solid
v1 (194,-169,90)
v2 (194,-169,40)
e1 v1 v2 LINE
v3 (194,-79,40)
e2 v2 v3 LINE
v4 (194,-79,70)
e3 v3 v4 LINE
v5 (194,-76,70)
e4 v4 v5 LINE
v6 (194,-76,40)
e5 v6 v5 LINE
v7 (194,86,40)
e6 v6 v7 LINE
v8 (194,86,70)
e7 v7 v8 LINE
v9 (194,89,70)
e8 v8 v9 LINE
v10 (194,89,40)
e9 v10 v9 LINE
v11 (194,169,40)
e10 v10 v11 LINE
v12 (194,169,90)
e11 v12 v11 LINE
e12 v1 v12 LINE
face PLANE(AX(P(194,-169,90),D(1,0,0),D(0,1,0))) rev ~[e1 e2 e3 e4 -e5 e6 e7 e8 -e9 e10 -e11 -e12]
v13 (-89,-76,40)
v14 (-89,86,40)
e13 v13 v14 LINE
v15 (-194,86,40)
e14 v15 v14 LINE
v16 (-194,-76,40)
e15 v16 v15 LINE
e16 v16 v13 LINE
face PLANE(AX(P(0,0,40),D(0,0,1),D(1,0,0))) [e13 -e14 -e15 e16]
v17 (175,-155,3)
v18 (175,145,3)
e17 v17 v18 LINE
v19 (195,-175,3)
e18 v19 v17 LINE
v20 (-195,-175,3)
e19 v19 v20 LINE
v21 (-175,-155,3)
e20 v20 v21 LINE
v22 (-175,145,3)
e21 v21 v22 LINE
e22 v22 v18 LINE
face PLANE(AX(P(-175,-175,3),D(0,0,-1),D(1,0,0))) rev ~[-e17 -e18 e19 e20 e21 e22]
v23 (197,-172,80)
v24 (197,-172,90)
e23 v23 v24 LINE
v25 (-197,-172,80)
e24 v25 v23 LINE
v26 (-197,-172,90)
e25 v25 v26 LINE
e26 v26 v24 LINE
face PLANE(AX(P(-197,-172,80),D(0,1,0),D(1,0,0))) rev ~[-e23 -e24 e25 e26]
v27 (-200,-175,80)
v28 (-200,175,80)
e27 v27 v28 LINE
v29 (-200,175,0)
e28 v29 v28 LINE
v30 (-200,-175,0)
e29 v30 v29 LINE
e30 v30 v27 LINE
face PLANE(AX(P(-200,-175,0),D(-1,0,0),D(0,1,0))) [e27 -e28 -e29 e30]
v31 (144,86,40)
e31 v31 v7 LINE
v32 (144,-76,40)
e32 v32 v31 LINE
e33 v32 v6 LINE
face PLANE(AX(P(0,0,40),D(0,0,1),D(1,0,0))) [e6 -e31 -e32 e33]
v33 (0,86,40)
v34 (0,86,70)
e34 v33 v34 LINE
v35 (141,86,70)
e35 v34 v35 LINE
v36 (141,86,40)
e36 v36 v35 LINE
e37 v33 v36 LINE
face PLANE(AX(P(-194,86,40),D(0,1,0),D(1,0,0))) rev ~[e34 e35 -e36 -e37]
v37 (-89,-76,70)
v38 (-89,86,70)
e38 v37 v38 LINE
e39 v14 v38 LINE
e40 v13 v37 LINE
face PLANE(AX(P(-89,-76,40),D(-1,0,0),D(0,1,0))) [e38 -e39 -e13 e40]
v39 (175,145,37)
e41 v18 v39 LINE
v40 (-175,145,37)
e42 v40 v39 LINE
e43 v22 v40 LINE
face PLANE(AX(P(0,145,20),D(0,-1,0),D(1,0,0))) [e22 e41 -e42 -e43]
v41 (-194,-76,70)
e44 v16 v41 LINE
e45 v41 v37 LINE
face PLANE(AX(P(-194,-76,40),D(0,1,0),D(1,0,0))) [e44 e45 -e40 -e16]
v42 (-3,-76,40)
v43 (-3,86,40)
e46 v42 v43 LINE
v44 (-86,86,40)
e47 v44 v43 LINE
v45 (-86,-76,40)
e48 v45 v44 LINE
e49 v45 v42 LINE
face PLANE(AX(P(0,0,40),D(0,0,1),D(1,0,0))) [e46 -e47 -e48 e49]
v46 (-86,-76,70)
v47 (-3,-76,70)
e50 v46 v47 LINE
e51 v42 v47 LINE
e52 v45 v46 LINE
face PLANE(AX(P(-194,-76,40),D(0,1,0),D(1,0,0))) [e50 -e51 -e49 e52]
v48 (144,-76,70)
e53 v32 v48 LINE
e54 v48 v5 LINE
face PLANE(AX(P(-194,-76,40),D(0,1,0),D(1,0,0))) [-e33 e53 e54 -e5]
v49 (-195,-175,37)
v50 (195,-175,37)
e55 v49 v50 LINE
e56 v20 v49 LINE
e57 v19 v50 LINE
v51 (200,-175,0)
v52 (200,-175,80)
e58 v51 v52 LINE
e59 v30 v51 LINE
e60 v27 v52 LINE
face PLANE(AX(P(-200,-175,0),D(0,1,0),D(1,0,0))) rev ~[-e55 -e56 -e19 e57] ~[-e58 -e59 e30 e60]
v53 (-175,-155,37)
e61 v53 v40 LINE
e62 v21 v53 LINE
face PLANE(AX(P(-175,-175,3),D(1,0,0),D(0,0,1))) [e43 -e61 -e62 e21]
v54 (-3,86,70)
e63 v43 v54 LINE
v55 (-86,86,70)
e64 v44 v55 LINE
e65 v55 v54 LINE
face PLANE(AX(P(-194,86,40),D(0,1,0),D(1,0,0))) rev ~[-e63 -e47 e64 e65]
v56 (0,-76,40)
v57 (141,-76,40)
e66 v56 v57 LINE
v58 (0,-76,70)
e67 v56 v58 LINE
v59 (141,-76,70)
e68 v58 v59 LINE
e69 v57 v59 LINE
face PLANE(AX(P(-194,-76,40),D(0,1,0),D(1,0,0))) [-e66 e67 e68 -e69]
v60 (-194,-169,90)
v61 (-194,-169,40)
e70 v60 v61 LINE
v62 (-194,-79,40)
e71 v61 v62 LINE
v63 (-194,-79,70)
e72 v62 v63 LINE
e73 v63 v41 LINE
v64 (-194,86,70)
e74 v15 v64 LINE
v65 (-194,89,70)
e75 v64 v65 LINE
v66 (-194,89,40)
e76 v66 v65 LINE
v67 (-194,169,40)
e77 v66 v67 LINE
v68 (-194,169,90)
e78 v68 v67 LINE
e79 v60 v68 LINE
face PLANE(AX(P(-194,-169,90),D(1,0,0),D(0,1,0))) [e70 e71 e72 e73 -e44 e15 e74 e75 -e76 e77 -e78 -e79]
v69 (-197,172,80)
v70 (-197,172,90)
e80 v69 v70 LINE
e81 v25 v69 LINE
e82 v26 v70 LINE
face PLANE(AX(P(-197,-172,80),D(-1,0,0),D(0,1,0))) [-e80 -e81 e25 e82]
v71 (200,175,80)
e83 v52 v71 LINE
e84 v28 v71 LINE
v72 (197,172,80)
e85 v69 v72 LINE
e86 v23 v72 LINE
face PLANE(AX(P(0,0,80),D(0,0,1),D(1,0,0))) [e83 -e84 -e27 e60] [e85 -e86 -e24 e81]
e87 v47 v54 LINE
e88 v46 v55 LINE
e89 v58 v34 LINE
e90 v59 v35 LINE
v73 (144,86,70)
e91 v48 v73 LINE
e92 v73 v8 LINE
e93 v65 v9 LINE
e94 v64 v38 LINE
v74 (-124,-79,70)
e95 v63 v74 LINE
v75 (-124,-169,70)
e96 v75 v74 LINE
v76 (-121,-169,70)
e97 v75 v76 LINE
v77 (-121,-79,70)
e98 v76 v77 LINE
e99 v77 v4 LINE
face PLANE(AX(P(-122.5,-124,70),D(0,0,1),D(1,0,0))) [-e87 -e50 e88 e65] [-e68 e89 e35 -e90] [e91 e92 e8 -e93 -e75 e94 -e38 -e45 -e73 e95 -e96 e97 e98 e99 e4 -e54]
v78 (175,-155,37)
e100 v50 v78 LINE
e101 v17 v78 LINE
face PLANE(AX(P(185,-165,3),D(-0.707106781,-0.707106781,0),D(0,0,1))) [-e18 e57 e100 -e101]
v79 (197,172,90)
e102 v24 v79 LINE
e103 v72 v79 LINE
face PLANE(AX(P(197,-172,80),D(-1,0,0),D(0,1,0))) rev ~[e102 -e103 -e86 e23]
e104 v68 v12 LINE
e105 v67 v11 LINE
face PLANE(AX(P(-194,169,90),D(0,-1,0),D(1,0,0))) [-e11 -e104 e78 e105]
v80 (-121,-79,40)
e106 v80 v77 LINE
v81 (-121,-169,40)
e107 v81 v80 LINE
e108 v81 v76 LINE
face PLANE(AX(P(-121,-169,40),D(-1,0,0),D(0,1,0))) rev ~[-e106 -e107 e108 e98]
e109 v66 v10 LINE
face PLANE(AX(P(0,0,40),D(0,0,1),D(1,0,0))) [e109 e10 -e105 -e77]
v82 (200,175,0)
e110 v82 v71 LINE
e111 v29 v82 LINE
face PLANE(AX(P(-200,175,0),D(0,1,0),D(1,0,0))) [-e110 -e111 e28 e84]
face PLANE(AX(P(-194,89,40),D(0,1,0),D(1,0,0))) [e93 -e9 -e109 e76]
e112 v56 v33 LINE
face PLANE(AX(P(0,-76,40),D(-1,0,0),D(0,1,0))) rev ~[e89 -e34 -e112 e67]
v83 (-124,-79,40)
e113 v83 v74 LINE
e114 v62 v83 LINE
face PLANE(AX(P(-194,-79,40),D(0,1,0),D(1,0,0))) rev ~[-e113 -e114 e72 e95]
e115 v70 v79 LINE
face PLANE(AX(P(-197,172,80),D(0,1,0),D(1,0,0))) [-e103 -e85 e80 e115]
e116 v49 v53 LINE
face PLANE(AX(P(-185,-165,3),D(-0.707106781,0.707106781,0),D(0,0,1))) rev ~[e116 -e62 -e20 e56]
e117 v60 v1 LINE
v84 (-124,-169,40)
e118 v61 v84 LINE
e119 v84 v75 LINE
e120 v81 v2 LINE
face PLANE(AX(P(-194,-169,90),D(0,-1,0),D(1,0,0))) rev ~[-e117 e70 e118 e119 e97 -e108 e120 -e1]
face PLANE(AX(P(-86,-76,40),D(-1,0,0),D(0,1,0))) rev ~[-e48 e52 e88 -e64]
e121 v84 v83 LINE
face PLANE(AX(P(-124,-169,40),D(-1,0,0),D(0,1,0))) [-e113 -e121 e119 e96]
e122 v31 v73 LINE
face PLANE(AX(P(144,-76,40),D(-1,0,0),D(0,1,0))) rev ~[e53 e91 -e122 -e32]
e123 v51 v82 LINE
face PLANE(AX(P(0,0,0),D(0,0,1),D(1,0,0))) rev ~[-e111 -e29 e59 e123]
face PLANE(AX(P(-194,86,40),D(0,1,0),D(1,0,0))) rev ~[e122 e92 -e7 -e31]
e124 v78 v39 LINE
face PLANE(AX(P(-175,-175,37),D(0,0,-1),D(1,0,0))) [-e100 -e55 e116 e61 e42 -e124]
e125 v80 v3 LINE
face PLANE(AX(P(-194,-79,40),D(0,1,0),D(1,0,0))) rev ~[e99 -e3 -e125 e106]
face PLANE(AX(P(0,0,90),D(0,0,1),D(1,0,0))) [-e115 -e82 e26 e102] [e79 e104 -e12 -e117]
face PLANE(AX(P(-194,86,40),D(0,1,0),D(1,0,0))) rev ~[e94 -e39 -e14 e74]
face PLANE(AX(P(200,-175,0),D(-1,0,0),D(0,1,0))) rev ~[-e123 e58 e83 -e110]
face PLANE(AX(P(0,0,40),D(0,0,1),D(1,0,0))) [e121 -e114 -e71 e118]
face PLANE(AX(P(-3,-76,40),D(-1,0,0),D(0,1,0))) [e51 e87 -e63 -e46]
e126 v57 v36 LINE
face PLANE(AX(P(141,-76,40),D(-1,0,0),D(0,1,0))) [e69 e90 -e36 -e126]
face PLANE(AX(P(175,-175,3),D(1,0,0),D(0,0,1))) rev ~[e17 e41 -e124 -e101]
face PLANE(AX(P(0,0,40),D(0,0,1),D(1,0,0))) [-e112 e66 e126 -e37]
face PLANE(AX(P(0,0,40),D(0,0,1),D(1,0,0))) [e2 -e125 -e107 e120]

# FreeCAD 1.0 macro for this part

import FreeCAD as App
import Part
import Sketcher

V = App.Vector
Q = App.Units.Quantity


def edges_at(feature, points):
    """Names of the edges that pass closest to the given points."""
    edges = feature.Shape.Edges
    near = lambda p: min(range(len(edges)), key=lambda i: edges[i].distToShape(Part.Vertex(*p))[0])
    return sorted({f"Edge{near(p) + 1}" for p in points})


def add_polygon(sketch, points):
    """Adds a closed chain of lines whose ends are joined by coincident constraints."""
    first, n = sketch.GeometryCount, len(points)
    for a, b in zip(points, points[1:] + points[:1]):
        sketch.addGeometry(Part.LineSegment(App.Vector(*a, 0), App.Vector(*b, 0)), False)
    for i in range(n):
        sketch.addConstraint(Sketcher.Constraint("Coincident", first + i, 2, first + (i + 1) % n, 1))

doc = App.newDocument("Part")
body = doc.addObject("PartDesign::Body", "Body")

# Sketch on XY plane
sketch1 = doc.addObject("Sketcher::SketchObject", "Sketch")
body.addObject(sketch1)
sketch1.AttachmentSupport = (doc.XY_Plane, [""])
sketch1.MapMode = "FlatFace"
add_polygon(sketch1, [(-200, 175), (-200, -175), (200, -175), (200, 175)])  # lines 0-3
sketch1.addConstraint(Sketcher.Constraint("Vertical", 0))
sketch1.addConstraint(Sketcher.Constraint("Horizontal", 1))
sketch1.addConstraint(Sketcher.Constraint("Vertical", 2))
sketch1.addConstraint(Sketcher.Constraint("Horizontal", 3))
sketch1.addConstraint(Sketcher.Constraint("Symmetric", 0, 2, 2, 2, -1, 1))
sketch1.addConstraint(Sketcher.Constraint("DistanceX", 1, 1, 1, 2, Q("400 mm")))
sketch1.addConstraint(Sketcher.Constraint("DistanceY", 0, 2, 0, 1, Q("350 mm")))
pad1 = doc.addObject("PartDesign::Pad", "Pad")
body.addObject(pad1)
pad1.Profile = sketch1
pad1.Length = 80

# Sketch on XY plane
sketch2 = doc.addObject("Sketcher::SketchObject", "Sketch001")
body.addObject(sketch2)
sketch2.AttachmentSupport = (doc.XY_Plane, [""])
sketch2.MapMode = "FlatFace"
sketch2.AttachmentOffset = App.Placement(V(0, 0, 80), App.Rotation())
add_polygon(sketch2, [(-197, 172), (-197, -172), (197, -172), (197, 172)])  # lines 0-3
sketch2.addConstraint(Sketcher.Constraint("Vertical", 0))
sketch2.addConstraint(Sketcher.Constraint("Horizontal", 1))
sketch2.addConstraint(Sketcher.Constraint("Vertical", 2))
sketch2.addConstraint(Sketcher.Constraint("Horizontal", 3))
sketch2.addConstraint(Sketcher.Constraint("Symmetric", 0, 2, 2, 2, -1, 1))
sketch2.addConstraint(Sketcher.Constraint("DistanceX", 1, 1, 1, 2, Q("394 mm")))
sketch2.addConstraint(Sketcher.Constraint("DistanceY", 0, 2, 0, 1, Q("344 mm")))
pad2 = doc.addObject("PartDesign::Pad", "Pad001")
body.addObject(pad2)
pad2.Profile = sketch2
pad2.Length = 10

# Sketch on XY plane
sketch3 = doc.addObject("Sketcher::SketchObject", "Sketch002")
body.addObject(sketch3)
sketch3.AttachmentSupport = (doc.XY_Plane, [""])
sketch3.MapMode = "FlatFace"
sketch3.AttachmentOffset = App.Placement(V(0, 0, 90), App.Rotation())
add_polygon(sketch3, [(-194, 169), (-194, -169), (194, -169), (194, 169)])  # lines 0-3
sketch3.addConstraint(Sketcher.Constraint("Vertical", 0))
sketch3.addConstraint(Sketcher.Constraint("Horizontal", 1))
sketch3.addConstraint(Sketcher.Constraint("Vertical", 2))
sketch3.addConstraint(Sketcher.Constraint("Horizontal", 3))
sketch3.addConstraint(Sketcher.Constraint("Symmetric", 0, 2, 2, 2, -1, 1))
sketch3.addConstraint(Sketcher.Constraint("DistanceX", 1, 1, 1, 2, Q("388 mm")))
sketch3.addConstraint(Sketcher.Constraint("DistanceY", 0, 2, 0, 1, Q("338 mm")))
pocket1 = doc.addObject("PartDesign::Pocket", "Pocket")
body.addObject(pocket1)
pocket1.Profile = sketch3
pocket1.Length = 50

# Sketch on XY plane
sketch4 = doc.addObject("Sketcher::SketchObject", "Sketch003")
body.addObject(sketch4)
sketch4.AttachmentSupport = (doc.XY_Plane, [""])
sketch4.MapMode = "FlatFace"
sketch4.AttachmentOffset = App.Placement(V(0, 0, 40), App.Rotation())
add_polygon(sketch4, [(-194, 89), (-194, 86), (194, 86), (194, 89)])  # lines 0-3
add_polygon(sketch4, [(-194, -76), (-194, -79), (194, -79), (194, -76)])  # lines 4-7
sketch4.addConstraint(Sketcher.Constraint("Vertical", 0))
sketch4.addConstraint(Sketcher.Constraint("Horizontal", 1))
sketch4.addConstraint(Sketcher.Constraint("Vertical", 2))
sketch4.addConstraint(Sketcher.Constraint("Horizontal", 3))
sketch4.addConstraint(Sketcher.Constraint("Vertical", 4))
sketch4.addConstraint(Sketcher.Constraint("Horizontal", 5))
sketch4.addConstraint(Sketcher.Constraint("Vertical", 6))
sketch4.addConstraint(Sketcher.Constraint("Horizontal", 7))
sketch4.addConstraint(Sketcher.Constraint("Vertical", 3, 2, 4, 2))
sketch4.addConstraint(Sketcher.Constraint("Vertical", 2, 2, 5, 2))
sketch4.addConstraint(Sketcher.Constraint("Equal", 2, 4))
sketch4.addConstraint(Sketcher.Constraint("DistanceX", 1, 1, 1, 2, Q("388 mm")))
sketch4.addConstraint(Sketcher.Constraint("DistanceY", 0, 2, 0, 1, Q("3 mm")))
sketch4.addConstraint(Sketcher.Constraint("DistanceX", 0, 2, -1, 1, Q("194 mm")))
sketch4.addConstraint(Sketcher.Constraint("DistanceY", -1, 1, 0, 2, Q("86 mm")))
sketch4.addConstraint(Sketcher.Constraint("DistanceY", 4, 2, -1, 1, Q("79 mm")))
pad3 = doc.addObject("PartDesign::Pad", "Pad002")
body.addObject(pad3)
pad3.Profile = sketch4
pad3.Length = 30

# Sketch on XY plane
sketch5 = doc.addObject("Sketcher::SketchObject", "Sketch004")
body.addObject(sketch5)
sketch5.AttachmentSupport = (doc.XY_Plane, [""])
sketch5.MapMode = "FlatFace"
sketch5.AttachmentOffset = App.Placement(V(0, 0, 40), App.Rotation())
add_polygon(sketch5, [(-89, 86), (-89, -76), (-86, -76), (-86, 86)])  # lines 0-3
add_polygon(sketch5, [(-3, 86), (-3, -76), (0, -76), (0, 86)])  # lines 4-7
add_polygon(sketch5, [(141, 86), (141, -76), (144, -76), (144, 86)])  # lines 8-11
add_polygon(sketch5, [(-124, -79), (-124, -169), (-121, -169), (-121, -79)])  # lines 12-15
sketch5.addConstraint(Sketcher.Constraint("Vertical", 0))
sketch5.addConstraint(Sketcher.Constraint("Horizontal", 1))
sketch5.addConstraint(Sketcher.Constraint("Vertical", 2))
sketch5.addConstraint(Sketcher.Constraint("Horizontal", 3))
sketch5.addConstraint(Sketcher.Constraint("Vertical", 4))
sketch5.addConstraint(Sketcher.Constraint("Horizontal", 5))
sketch5.addConstraint(Sketcher.Constraint("Vertical", 6))
sketch5.addConstraint(Sketcher.Constraint("Horizontal", 7))
sketch5.addConstraint(Sketcher.Constraint("Vertical", 8))
sketch5.addConstraint(Sketcher.Constraint("Horizontal", 9))
sketch5.addConstraint(Sketcher.Constraint("Vertical", 10))
sketch5.addConstraint(Sketcher.Constraint("Horizontal", 11))
sketch5.addConstraint(Sketcher.Constraint("Vertical", 12))
sketch5.addConstraint(Sketcher.Constraint("Horizontal", 13))
sketch5.addConstraint(Sketcher.Constraint("Vertical", 14))
sketch5.addConstraint(Sketcher.Constraint("Horizontal", 15))
sketch5.addConstraint(Sketcher.Constraint("PointOnObject", 5, 2, -2))
sketch5.addConstraint(Sketcher.Constraint("Horizontal", 1, 2, 4, 2))
sketch5.addConstraint(Sketcher.Constraint("Horizontal", 3, 2, 6, 2))
sketch5.addConstraint(Sketcher.Constraint("Horizontal", 5, 2, 8, 2))
sketch5.addConstraint(Sketcher.Constraint("Horizontal", 7, 2, 10, 2))
sketch5.addConstraint(Sketcher.Constraint("Equal", 3, 5))
sketch5.addConstraint(Sketcher.Constraint("Equal", 7, 9))
sketch5.addConstraint(Sketcher.Constraint("Equal", 11, 13))
sketch5.addConstraint(Sketcher.Constraint("DistanceX", 1, 1, 1, 2, Q("3 mm")))
sketch5.addConstraint(Sketcher.Constraint("DistanceY", 0, 2, 0, 1, Q("162 mm")))
sketch5.addConstraint(Sketcher.Constraint("DistanceY", 12, 2, 12, 1, Q("90 mm")))
sketch5.addConstraint(Sketcher.Constraint("DistanceX", 0, 2, -1, 1, Q("89 mm")))
sketch5.addConstraint(Sketcher.Constraint("DistanceY", 0, 2, -1, 1, Q("76 mm")))
sketch5.addConstraint(Sketcher.Constraint("DistanceX", -1, 1, 8, 2, Q("141 mm")))
sketch5.addConstraint(Sketcher.Constraint("DistanceX", 12, 2, -1, 1, Q("124 mm")))
sketch5.addConstraint(Sketcher.Constraint("DistanceY", 12, 2, -1, 1, Q("169 mm")))
pad4 = doc.addObject("PartDesign::Pad", "Pad003")
body.addObject(pad4)
pad4.Profile = sketch5
pad4.Length = 30

# Sketch on XZ plane
sketch6 = doc.addObject("Sketcher::SketchObject", "Sketch005")
body.addObject(sketch6)
sketch6.AttachmentSupport = (doc.XZ_Plane, [""])
sketch6.MapMode = "FlatFace"
sketch6.AttachmentOffset = App.Placement(V(0, 0, 175), App.Rotation())
add_polygon(sketch6, [(-175, 37), (-175, 3), (175, 3), (175, 37)])  # lines 0-3
sketch6.addConstraint(Sketcher.Constraint("Vertical", 0))
sketch6.addConstraint(Sketcher.Constraint("Horizontal", 1))
sketch6.addConstraint(Sketcher.Constraint("Vertical", 2))
sketch6.addConstraint(Sketcher.Constraint("Horizontal", 3))
sketch6.addConstraint(Sketcher.Constraint("DistanceX", 1, 1, 1, 2, Q("350 mm")))
sketch6.addConstraint(Sketcher.Constraint("DistanceY", 0, 2, 0, 1, Q("34 mm")))
sketch6.addConstraint(Sketcher.Constraint("DistanceX", 0, 2, -1, 1, Q("175 mm")))
sketch6.addConstraint(Sketcher.Constraint("DistanceY", -1, 1, 0, 2, Q("3 mm")))
pocket2 = doc.addObject("PartDesign::Pocket", "Pocket001")
body.addObject(pocket2)
pocket2.Profile = sketch6
pocket2.Length = 320
doc.recompute()

chamfer = doc.addObject("PartDesign::Chamfer", "Chamfer")
body.addObject(chamfer)
chamfer.Base = (pocket2, edges_at(pocket2, [(175, -175, 20), (-175, -175, 20)]))
chamfer.Size = 20

doc.recompute()
